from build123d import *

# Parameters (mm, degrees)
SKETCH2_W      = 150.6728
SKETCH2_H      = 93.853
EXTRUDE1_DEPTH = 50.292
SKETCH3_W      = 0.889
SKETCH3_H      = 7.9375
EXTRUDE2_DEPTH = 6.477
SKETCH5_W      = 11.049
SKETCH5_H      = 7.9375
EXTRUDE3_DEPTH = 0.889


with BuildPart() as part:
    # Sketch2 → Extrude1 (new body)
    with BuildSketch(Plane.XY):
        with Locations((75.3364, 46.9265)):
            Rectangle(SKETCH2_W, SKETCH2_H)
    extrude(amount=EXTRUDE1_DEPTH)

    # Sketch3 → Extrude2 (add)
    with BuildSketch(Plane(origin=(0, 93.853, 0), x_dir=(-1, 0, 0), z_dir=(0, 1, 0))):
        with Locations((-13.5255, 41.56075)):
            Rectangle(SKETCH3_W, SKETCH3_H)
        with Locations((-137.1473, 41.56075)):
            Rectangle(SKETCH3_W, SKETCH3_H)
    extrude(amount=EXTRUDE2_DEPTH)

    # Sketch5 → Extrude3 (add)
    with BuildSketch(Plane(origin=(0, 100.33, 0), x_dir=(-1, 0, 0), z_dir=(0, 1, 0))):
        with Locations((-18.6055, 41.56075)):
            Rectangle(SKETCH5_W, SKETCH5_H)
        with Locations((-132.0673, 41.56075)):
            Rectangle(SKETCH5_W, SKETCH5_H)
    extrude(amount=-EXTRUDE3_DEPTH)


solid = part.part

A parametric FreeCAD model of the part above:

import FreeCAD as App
import Part
import Sketcher

V = App.Vector
Q = App.Units.Quantity


def add_polygon(sketch, points):
    """Adds a closed chain of lines whose ends are joined by coincident constraints."""
    first, n = sketch.GeometryCount, len(points)
    for a, b in zip(points, points[1:] + points[:1]):
        sketch.addGeometry(Part.LineSegment(App.Vector(*a, 0), App.Vector(*b, 0)), False)
    for i in range(n):
        sketch.addConstraint(Sketcher.Constraint("Coincident", first + i, 2, first + (i + 1) % n, 1))

doc = App.newDocument("Part")
body = doc.addObject("PartDesign::Body", "Body")

sketch1 = body.newObject("Sketcher::SketchObject", "Sketch")
sketch1.AttachmentSupport = (doc.getObject("XY_Plane"), [""])
sketch1.MapMode = "FlatFace"
add_polygon(sketch1, [(0, 94), (0, 0), (151, 0), (151, 94)])
sketch1.addConstraint([
    Sketcher.Constraint("Vertical", 0),
    Sketcher.Constraint("Horizontal", 1),
    Sketcher.Constraint("Vertical", 2),
    Sketcher.Constraint("Horizontal", 3),
    Sketcher.Constraint("Coincident", 0, 2, -1, 1),
    Sketcher.Constraint("DistanceX", 1, 1, 1, 2, Q("5.932 in")),
    Sketcher.Constraint("DistanceY", 0, 2, 0, 1, Q("3.695 in")),
])
pad1 = body.newObject("PartDesign::Pad", "Pad")
pad1.Profile = sketch1
pad1.Length = Q("1.98 in")

sketch2 = body.newObject("Sketcher::SketchObject", "Sketch001")
sketch2.AttachmentSupport = (doc.getObject("XZ_Plane"), [""])
sketch2.MapMode = "FlatFace"
sketch2.AttachmentOffset = App.Placement(V(0, 0, -3.695 * 25.4), App.Rotation())
add_polygon(sketch2, [(14, 45.5), (14, 37.6), (13.1, 37.6), (13.1, 45.5)])
add_polygon(sketch2, [(137.6, 45.5), (137.6, 37.6), (136.7, 37.6), (136.7, 45.5)])
sketch2.addConstraint([
    Sketcher.Constraint("Vertical", 0),
    Sketcher.Constraint("Horizontal", 1),
    Sketcher.Constraint("Vertical", 2),
    Sketcher.Constraint("Horizontal", 3),
    Sketcher.Constraint("Vertical", 4),
    Sketcher.Constraint("Horizontal", 5),
    Sketcher.Constraint("Vertical", 6),
    Sketcher.Constraint("Horizontal", 7),
    Sketcher.Constraint("Horizontal", 1, 2, 4, 2),
    Sketcher.Constraint("Horizontal", 3, 2, 6, 2),
    Sketcher.Constraint("Equal", 3, 5),
    Sketcher.Constraint("DistanceX", 1, 2, 1, 1, Q("0.035 in")),
    Sketcher.Constraint("DistanceY", 0, 2, 0, 1, Q("0.3125 in")),
    Sketcher.Constraint("DistanceX", -1, 1, 0, 2, Q("0.55 in")),
    Sketcher.Constraint("DistanceY", -1, 1, 0, 2, Q("1.48 in")),
    Sketcher.Constraint("DistanceX", -1, 1, 4, 2, Q("5.417 in")),
])
pad2 = body.newObject("PartDesign::Pad", "Pad001")
pad2.Profile = sketch2
pad2.Length = Q("0.255 in")
pad2.Reversed = True

sketch3 = body.newObject("Sketcher::SketchObject", "Sketch002")
sketch3.AttachmentSupport = (doc.getObject("XZ_Plane"), [""])
sketch3.MapMode = "FlatFace"
sketch3.AttachmentOffset = App.Placement(V(0, 0, -3.95 * 25.4), App.Rotation())
add_polygon(sketch3, [(24, 46), (24, 38), (13, 38), (13, 46)])
add_polygon(sketch3, [(138, 46), (138, 38), (127, 38), (127, 46)])
sketch3.addConstraint([
    Sketcher.Constraint("Vertical", 0),
    Sketcher.Constraint("Horizontal", 1),
    Sketcher.Constraint("Vertical", 2),
    Sketcher.Constraint("Horizontal", 3),
    Sketcher.Constraint("Vertical", 4),
    Sketcher.Constraint("Horizontal", 5),
    Sketcher.Constraint("Vertical", 6),
    Sketcher.Constraint("Horizontal", 7),
    Sketcher.Constraint("Horizontal", 1, 2, 4, 2),
    Sketcher.Constraint("Horizontal", 3, 2, 6, 2),
    Sketcher.Constraint("Equal", 3, 5),
    Sketcher.Constraint("DistanceX", 1, 2, 1, 1, Q("0.435 in")),
    Sketcher.Constraint("DistanceY", 0, 2, 0, 1, Q("0.3125 in")),
    Sketcher.Constraint("DistanceX", -1, 1, 0, 2, Q("0.95 in")),
    Sketcher.Constraint("DistanceY", -1, 1, 0, 2, Q("1.48 in")),
    Sketcher.Constraint("DistanceX", -1, 1, 4, 2, Q("5.417 in")),
])
pad3 = body.newObject("PartDesign::Pad", "Pad002")
pad3.Profile = sketch3
pad3.Length = Q("0.035 in")

doc.recompute()
